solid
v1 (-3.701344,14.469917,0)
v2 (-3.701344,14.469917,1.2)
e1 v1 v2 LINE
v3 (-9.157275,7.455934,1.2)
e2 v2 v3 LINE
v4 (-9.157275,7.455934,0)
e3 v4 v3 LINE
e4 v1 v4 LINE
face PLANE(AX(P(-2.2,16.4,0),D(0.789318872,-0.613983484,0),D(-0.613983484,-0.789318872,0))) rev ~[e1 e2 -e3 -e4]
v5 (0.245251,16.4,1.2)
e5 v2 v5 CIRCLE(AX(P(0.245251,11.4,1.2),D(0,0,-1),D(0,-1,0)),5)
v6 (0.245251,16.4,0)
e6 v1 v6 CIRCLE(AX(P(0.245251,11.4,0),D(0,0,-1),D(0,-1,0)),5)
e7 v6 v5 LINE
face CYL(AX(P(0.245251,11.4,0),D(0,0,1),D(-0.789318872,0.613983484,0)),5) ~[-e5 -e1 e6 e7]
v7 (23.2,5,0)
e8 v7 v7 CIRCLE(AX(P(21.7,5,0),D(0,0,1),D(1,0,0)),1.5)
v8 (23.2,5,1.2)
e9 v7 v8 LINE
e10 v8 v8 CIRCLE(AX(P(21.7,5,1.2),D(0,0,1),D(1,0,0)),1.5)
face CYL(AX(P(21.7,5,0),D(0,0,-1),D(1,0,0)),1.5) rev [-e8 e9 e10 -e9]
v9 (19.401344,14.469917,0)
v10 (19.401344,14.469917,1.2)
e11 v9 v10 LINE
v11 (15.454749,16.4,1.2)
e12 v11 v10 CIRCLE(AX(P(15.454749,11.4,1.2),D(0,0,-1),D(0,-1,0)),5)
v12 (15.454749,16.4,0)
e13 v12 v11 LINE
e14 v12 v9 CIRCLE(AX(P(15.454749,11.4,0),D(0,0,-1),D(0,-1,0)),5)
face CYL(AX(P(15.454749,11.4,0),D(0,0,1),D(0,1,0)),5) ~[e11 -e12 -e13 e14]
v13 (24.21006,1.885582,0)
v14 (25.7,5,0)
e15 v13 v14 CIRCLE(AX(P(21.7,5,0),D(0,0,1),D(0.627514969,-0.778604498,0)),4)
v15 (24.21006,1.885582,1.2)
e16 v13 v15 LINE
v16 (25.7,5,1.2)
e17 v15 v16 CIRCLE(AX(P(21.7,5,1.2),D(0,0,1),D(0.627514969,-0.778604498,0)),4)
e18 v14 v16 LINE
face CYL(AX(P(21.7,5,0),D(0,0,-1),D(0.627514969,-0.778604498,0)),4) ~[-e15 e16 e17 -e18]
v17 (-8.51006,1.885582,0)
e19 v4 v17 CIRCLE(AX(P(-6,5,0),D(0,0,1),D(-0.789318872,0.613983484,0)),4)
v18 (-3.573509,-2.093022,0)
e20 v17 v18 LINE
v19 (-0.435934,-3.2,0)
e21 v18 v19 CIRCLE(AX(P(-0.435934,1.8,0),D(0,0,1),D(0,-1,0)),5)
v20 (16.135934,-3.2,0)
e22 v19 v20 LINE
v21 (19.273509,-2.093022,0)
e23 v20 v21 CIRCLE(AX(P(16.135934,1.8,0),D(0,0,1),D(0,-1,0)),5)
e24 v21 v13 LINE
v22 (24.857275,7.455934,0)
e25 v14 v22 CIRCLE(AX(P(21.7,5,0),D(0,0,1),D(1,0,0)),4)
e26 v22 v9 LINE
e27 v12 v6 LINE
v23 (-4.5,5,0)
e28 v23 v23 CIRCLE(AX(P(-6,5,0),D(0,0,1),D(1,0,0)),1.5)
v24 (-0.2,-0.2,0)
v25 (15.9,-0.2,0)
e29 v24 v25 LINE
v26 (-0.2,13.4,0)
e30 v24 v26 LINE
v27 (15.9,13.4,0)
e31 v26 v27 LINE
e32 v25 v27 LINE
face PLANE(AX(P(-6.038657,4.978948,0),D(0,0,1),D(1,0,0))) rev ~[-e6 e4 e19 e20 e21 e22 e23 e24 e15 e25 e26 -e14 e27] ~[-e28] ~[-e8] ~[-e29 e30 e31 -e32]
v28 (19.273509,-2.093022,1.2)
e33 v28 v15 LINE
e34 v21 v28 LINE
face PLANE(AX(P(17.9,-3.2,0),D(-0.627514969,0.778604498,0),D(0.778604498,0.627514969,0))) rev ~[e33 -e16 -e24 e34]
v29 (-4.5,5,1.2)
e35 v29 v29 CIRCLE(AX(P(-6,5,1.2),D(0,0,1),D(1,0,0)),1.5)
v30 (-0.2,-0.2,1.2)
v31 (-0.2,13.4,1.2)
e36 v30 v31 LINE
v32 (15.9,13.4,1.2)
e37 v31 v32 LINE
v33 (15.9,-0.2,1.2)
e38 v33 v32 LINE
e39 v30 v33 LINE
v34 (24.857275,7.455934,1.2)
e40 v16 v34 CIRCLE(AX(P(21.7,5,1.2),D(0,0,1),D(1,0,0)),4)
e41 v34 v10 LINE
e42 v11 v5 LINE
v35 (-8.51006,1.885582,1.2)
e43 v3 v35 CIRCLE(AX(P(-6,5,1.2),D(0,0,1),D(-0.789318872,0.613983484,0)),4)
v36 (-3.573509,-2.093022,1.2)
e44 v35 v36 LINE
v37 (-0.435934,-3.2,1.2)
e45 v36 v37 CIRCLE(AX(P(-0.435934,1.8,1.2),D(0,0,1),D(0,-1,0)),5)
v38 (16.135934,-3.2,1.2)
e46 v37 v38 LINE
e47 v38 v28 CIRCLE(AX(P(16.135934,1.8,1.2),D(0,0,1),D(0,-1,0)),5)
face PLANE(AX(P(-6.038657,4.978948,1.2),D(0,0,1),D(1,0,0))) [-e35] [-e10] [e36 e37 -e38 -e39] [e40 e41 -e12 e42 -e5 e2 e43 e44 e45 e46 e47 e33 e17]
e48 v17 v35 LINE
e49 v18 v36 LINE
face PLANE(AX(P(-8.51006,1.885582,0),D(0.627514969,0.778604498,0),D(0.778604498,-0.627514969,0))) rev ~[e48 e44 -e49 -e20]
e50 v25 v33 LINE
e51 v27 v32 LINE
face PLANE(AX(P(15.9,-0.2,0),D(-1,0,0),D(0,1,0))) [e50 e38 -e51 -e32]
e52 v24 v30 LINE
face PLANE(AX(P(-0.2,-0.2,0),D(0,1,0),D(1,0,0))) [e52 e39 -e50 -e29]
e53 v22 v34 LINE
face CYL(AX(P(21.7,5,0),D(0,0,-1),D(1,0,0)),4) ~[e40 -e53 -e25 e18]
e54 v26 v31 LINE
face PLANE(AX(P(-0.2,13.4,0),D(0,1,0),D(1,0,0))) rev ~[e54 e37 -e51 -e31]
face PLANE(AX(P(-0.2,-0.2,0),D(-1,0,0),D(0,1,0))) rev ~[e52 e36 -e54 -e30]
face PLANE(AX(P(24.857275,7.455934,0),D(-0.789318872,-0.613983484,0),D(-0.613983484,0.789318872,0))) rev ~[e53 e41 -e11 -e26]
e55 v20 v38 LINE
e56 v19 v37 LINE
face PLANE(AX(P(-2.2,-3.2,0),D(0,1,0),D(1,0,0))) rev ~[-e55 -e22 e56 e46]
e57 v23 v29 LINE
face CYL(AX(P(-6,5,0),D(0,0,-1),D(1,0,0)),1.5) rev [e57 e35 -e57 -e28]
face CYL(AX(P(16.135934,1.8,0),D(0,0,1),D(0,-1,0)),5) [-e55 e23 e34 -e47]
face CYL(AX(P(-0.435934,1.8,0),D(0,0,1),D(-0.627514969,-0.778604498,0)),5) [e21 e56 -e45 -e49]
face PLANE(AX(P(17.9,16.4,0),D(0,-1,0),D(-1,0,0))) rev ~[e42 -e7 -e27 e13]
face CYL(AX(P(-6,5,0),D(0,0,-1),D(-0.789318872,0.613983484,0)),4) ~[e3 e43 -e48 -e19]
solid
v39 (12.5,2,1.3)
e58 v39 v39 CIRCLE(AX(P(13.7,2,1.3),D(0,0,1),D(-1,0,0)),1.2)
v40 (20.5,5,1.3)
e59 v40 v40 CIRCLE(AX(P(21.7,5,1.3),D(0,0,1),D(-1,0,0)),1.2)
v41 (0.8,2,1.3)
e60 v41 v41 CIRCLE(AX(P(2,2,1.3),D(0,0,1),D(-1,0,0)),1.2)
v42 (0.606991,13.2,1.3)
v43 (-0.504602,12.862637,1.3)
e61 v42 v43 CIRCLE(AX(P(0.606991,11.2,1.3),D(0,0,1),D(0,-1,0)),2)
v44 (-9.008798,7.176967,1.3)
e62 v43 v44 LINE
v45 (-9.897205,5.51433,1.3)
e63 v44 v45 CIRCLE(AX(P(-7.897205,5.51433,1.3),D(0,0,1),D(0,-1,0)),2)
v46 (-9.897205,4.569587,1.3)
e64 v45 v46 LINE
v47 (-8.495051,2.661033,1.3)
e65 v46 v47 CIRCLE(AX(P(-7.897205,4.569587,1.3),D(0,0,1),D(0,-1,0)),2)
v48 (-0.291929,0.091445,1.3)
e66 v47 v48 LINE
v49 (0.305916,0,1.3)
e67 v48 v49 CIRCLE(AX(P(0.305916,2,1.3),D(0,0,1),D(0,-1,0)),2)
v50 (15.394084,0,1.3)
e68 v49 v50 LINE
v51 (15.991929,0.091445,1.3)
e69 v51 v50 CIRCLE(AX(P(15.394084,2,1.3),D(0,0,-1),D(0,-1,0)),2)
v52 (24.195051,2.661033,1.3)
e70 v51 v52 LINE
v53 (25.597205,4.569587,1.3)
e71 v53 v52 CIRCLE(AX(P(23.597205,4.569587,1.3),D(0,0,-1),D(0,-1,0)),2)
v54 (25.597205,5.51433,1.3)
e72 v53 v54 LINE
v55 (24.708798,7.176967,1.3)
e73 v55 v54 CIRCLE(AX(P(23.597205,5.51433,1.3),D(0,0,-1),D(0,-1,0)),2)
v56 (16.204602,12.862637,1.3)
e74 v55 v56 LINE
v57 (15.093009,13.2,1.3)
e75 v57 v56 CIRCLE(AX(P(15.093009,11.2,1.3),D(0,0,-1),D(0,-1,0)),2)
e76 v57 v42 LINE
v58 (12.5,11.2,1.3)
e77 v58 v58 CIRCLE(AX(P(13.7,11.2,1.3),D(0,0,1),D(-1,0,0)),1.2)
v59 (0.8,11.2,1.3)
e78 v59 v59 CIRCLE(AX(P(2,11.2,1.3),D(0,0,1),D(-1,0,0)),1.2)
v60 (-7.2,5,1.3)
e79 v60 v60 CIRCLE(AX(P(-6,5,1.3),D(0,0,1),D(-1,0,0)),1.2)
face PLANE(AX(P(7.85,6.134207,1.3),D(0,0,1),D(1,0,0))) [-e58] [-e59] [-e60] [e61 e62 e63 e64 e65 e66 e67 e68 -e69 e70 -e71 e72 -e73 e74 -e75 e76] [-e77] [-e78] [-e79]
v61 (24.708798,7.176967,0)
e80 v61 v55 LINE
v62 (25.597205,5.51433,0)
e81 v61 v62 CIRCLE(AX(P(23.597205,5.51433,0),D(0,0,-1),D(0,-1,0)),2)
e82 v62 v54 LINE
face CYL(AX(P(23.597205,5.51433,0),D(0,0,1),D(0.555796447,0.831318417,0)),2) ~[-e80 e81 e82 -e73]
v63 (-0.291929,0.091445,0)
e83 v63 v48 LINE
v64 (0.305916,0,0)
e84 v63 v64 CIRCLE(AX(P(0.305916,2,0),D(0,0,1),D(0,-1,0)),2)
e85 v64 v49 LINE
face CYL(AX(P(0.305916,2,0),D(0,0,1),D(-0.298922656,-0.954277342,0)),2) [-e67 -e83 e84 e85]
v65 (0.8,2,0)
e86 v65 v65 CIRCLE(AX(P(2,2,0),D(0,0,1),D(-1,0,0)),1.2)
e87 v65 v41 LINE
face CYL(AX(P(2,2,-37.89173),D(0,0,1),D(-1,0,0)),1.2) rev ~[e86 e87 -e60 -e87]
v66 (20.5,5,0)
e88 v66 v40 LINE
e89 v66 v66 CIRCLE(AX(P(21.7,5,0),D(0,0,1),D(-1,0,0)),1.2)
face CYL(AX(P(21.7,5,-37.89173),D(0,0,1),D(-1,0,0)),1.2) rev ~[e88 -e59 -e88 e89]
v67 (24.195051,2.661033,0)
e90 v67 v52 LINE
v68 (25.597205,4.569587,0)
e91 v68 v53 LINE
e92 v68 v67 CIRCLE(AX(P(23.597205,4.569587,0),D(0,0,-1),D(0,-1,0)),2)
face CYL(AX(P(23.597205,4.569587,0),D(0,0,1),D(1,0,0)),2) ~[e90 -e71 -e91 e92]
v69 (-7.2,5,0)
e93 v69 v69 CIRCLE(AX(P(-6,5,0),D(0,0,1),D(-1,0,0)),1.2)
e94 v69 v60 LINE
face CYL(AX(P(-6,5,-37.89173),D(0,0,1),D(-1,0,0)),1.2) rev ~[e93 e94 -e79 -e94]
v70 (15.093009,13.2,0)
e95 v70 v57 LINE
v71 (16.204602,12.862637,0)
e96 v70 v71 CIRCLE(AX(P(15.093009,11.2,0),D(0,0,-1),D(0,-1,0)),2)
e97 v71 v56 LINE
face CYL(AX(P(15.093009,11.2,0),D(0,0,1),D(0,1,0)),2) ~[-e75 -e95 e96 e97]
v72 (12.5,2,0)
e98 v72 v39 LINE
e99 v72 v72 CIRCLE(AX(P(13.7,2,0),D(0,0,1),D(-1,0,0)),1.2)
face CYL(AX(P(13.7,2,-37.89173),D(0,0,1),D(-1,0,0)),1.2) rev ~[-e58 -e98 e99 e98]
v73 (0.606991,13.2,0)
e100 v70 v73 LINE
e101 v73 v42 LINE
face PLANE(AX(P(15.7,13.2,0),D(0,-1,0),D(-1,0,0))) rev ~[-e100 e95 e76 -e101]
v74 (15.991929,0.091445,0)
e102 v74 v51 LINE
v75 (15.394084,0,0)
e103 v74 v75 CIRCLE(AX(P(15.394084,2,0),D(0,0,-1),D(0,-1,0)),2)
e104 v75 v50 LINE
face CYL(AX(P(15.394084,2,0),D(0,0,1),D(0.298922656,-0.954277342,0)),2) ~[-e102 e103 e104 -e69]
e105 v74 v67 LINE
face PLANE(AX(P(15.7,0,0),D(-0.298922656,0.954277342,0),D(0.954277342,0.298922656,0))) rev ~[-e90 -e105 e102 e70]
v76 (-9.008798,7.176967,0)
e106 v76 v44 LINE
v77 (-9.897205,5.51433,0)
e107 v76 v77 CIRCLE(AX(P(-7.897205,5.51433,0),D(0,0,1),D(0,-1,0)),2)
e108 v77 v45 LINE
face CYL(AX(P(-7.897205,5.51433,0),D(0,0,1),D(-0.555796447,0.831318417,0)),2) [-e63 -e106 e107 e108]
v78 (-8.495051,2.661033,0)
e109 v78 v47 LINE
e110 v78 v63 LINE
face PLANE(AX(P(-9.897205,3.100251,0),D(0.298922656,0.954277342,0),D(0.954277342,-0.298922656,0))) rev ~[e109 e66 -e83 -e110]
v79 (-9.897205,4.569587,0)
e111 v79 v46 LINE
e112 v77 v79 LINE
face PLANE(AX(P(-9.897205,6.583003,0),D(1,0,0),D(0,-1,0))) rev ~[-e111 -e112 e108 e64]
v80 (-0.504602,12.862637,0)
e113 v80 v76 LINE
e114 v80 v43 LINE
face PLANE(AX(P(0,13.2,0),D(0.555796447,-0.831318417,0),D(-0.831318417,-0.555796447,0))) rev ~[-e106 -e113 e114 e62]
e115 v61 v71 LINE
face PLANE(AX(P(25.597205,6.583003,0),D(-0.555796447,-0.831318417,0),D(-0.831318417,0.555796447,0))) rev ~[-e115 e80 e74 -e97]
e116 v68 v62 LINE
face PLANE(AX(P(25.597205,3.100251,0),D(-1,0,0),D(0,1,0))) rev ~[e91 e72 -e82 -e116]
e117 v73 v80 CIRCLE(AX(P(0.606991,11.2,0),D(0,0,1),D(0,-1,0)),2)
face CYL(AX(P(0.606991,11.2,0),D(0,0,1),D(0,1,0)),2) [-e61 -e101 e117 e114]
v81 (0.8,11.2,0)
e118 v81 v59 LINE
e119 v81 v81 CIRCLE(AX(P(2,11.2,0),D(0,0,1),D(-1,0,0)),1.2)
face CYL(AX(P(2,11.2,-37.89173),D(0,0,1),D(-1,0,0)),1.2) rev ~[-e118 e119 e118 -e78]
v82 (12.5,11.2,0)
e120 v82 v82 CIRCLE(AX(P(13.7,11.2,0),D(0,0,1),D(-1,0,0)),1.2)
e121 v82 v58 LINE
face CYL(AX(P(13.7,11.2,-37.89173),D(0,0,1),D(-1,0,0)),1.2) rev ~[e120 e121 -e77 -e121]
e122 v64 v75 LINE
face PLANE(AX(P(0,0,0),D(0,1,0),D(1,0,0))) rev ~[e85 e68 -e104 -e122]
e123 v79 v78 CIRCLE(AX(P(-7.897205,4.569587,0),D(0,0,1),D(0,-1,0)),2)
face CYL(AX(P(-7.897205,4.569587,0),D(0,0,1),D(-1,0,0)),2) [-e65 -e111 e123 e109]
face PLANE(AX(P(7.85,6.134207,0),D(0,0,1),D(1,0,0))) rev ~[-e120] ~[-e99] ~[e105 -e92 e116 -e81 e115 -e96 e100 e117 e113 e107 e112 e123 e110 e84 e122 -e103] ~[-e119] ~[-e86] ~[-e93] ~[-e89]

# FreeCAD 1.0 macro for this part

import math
import FreeCAD as App
import Part
import Sketcher

V = App.Vector


def edges_at(feature, points):
    """Names of the edges that pass closest to the given points."""
    edges = feature.Shape.Edges
    near = lambda p: min(range(len(edges)), key=lambda i: edges[i].distToShape(Part.Vertex(*p))[0])
    return sorted({f"Edge{near(p) + 1}" for p in points})

doc = App.newDocument("Part")
body = doc.addObject("PartDesign::Body", "Body")

# Sketch on XY plane
sketch1 = body.newObject("Sketcher::SketchObject", "Sketch")
sketch1.AttachmentSupport = (doc.getObject("XY_Plane"), [""])
sketch1.MapMode = "FlatFace"
sketch1.addGeometry([
    Part.LineSegment(V(15.7, 13.2, 0), V(0, 13.2, 0)),  # 0
    Part.LineSegment(V(0, 13.2, 0), V(-9.9, 6.6, 0)),  # 1
    Part.LineSegment(V(-9.9, 6.6, 0), V(-9.9, 3.1, 0)),  # 2
    Part.LineSegment(V(-9.9, 3.1, 0), V(0, 0, 0)),  # 3
    Part.LineSegment(V(0, 0, 0), V(15.7, 0, 0)),  # 4
    Part.LineSegment(V(15.7, 0, 0), V(25.6, 3.1, 0)),  # 5
    Part.LineSegment(V(25.6, 3.1, 0), V(25.6, 6.6, 0)),  # 6
    Part.LineSegment(V(25.6, 6.6, 0), V(15.7, 13.2, 0)),  # 7
], False)
sketch1.addConstraint([
    Sketcher.Constraint("Coincident", 0, 2, 1, 1),
    Sketcher.Constraint("Coincident", 1, 2, 2, 1),
    Sketcher.Constraint("Coincident", 2, 2, 3, 1),
    Sketcher.Constraint("Coincident", 3, 2, 4, 1),
    Sketcher.Constraint("Coincident", 4, 2, 5, 1),
    Sketcher.Constraint("Coincident", 5, 2, 6, 1),
    Sketcher.Constraint("Coincident", 6, 2, 7, 1),
    Sketcher.Constraint("Coincident", 7, 2, 0, 1),
    Sketcher.Constraint("Horizontal", 0),
    Sketcher.Constraint("Vertical", 2),
    Sketcher.Constraint("Horizontal", 4),
    Sketcher.Constraint("Vertical", 6),
    Sketcher.Constraint("Coincident", 3, 2, -1, 1),
    Sketcher.Constraint("PointOnObject", 0, 2, -2),
    Sketcher.Constraint("Horizontal", 2, 2, 5, 2),
    Sketcher.Constraint("Horizontal", 1, 2, 6, 2),
    Sketcher.Constraint("Vertical", 4, 2, 7, 2),
    Sketcher.Constraint("Equal", 3, 5),
    Sketcher.Constraint("DistanceX", 0, 2, 0, 1, 15.7),
    Sketcher.Constraint("DistanceY", -1, 1, 0, 2, 13.2),
    Sketcher.Constraint("DistanceY", 2, 2, 2, 1, 3.482752),
    Sketcher.Constraint("DistanceY", -1, 1, 2, 2, 3.100251),
    Sketcher.Constraint("DistanceX", 2, 2, 5, 2, 35.494411),
])
pad1 = body.newObject("PartDesign::Pad", "Pad")
pad1.Profile = sketch1
pad1.Length = 1.3

# Sketch on XY plane
sketch2 = body.newObject("Sketcher::SketchObject", "Sketch001")
sketch2.AttachmentSupport = (doc.getObject("XY_Plane"), [""])
sketch2.MapMode = "FlatFace"
sketch2.addGeometry([
    Part.Circle(V(13.7, 11.2, 0), V(0, 0, 1), 1.2),  # 0
    Part.Circle(V(2, 11.2, 0), V(0, 0, 1), 1.2),  # 1
    Part.Circle(V(-6, 5, 0), V(0, 0, 1), 1.2),  # 2
    Part.Circle(V(2, 2, 0), V(0, 0, 1), 1.2),  # 3
    Part.Circle(V(13.7, 2, 0), V(0, 0, 1), 1.2),  # 4
    Part.Circle(V(21.7, 5, 0), V(0, 0, 1), 1.2),  # 5
], False)
sketch2.addConstraint([
    Sketcher.Constraint("Equal", 0, 1),
    Sketcher.Constraint("Equal", 1, 2),
    Sketcher.Constraint("Equal", 2, 3),
    Sketcher.Constraint("Equal", 3, 4),
    Sketcher.Constraint("Equal", 4, 5),
    Sketcher.Constraint("Horizontal", 0, 3, 1, 3),
    Sketcher.Constraint("Horizontal", 3, 3, 4, 3),
    Sketcher.Constraint("Horizontal", 2, 3, 5, 3),
    Sketcher.Constraint("Vertical", 1, 3, 3, 3),
    Sketcher.Constraint("Vertical", 0, 3, 4, 3),
    Sketcher.Constraint("Diameter", 0, 2.4),
    Sketcher.Constraint("DistanceX", -1, 1, 1, 3, 2.0),
    Sketcher.Constraint("DistanceX", 2, 3, -1, 1, 6.0),
    Sketcher.Constraint("DistanceY", -1, 1, 2, 3, 5.0),
    Sketcher.Constraint("DistanceY", -1, 1, 3, 3, 2.0),
    Sketcher.Constraint("DistanceX", 4, 3, 5, 3, 8.0),
    Sketcher.Constraint("DistanceX", -1, 1, 0, 3, 13.7),
    Sketcher.Constraint("DistanceY", -1, 1, 0, 3, 11.2),
])
doc.recompute()
hole = body.newObject("PartDesign::Hole", "Hole")
hole.Profile = sketch2
hole.ThreadType = "None"
hole.Diameter = 2.4
hole.DepthType = "ThroughAll"
hole.Reversed = True
doc.recompute()

fillet = body.newObject("PartDesign::Fillet", "Fillet")
fillet.Base = (hole, edges_at(hole, [
    (-9.897, 3.1, 0.65),
    (-9.897, 6.583, 0.65),
    (0, 13.2, 0.65),
    (0, 0, 0.65),
    (15.7, 0, 0.65),
    (25.597, 3.1, 0.65),
    (25.597, 6.583, 0.65),
    (15.7, 13.2, 0.65),
]))
fillet.Radius = 2
body2 = doc.addObject("PartDesign::Body", "Body001")

# Sketch on XY plane
sketch3 = body2.newObject("Sketcher::SketchObject", "Sketch002")
sketch3.AttachmentSupport = (doc.getObject("XY_Plane001"), [""])
sketch3.MapMode = "FlatFace"
sketch3.addGeometry([
    Part.ArcOfCircle(Part.Circle(V(-6, 5, 0), V(0, 0, 1), 4), math.radians(142), math.radians(231)),  # 0
    Part.LineSegment(V(-8.5, 1.9, 0), V(-2.2, -3.2, 0)),  # 1
    Part.LineSegment(V(-2.2, -3.2, 0), V(17.9, -3.2, 0)),  # 2
    Part.LineSegment(V(17.9, -3.2, 0), V(24.2, 1.9, 0)),  # 3
    Part.ArcOfCircle(Part.Circle(V(21.7, 5, 0), V(0, 0, 1), 4), math.radians(-51), math.radians(0)),  # 4
    Part.ArcOfCircle(Part.Circle(V(21.7, 5, 0), V(0, 0, 1), 4), math.radians(0), math.radians(38)),  # 5
    Part.LineSegment(V(24.9, 7.5, 0), V(17.9, 16.4, 0)),  # 6
    Part.LineSegment(V(17.9, 16.4, 0), V(-2.2, 16.4, 0)),  # 7
    Part.LineSegment(V(-2.2, 16.4, 0), V(-9.2, 7.5, 0)),  # 8
    Part.Circle(V(-6, 5, 0), V(0, 0, 1), 1.5),  # 9
    Part.Circle(V(21.7, 5, 0), V(0, 0, 1), 1.5),  # 10
    Part.LineSegment(V(15.9, -0.2, 0), V(-0.2, -0.2, 0)),  # 11
    Part.LineSegment(V(-0.2, -0.2, 0), V(-0.2, 13.4, 0)),  # 12
    Part.LineSegment(V(-0.2, 13.4, 0), V(15.9, 13.4, 0)),  # 13
    Part.LineSegment(V(15.9, 13.4, 0), V(15.9, -0.2, 0)),  # 14
], False)
sketch3.addConstraint([
    Sketcher.Constraint("Tangent", 0, 2, 1, 1),
    Sketcher.Constraint("Coincident", 1, 2, 2, 1),
    Sketcher.Constraint("Coincident", 2, 2, 3, 1),
    Sketcher.Constraint("Tangent", 3, 2, 4, 1),
    Sketcher.Constraint("Tangent", 4, 2, 5, 1),
    Sketcher.Constraint("Tangent", 5, 2, 6, 1),
    Sketcher.Constraint("Coincident", 6, 2, 7, 1),
    Sketcher.Constraint("Coincident", 7, 2, 8, 1),
    Sketcher.Constraint("Tangent", 8, 2, 0, 1),
    Sketcher.Constraint("Coincident", 11, 2, 12, 1),
    Sketcher.Constraint("Coincident", 12, 2, 13, 1),
    Sketcher.Constraint("Coincident", 13, 2, 14, 1),
    Sketcher.Constraint("Coincident", 14, 2, 11, 1),
    Sketcher.Constraint("Horizontal", 2),
    Sketcher.Constraint("Horizontal", 7),
    Sketcher.Constraint("Horizontal", 11),
    Sketcher.Constraint("Vertical", 12),
    Sketcher.Constraint("Horizontal", 13),
    Sketcher.Constraint("Vertical", 14),
    Sketcher.Constraint("Coincident", 9, 3, 0, 3),
    Sketcher.Constraint("Coincident", 10, 3, 4, 3),
    Sketcher.Constraint("Equal", 0, 4),
    Sketcher.Constraint("Equal", 4, 5),
    Sketcher.Constraint("Equal", 9, 10),
    Sketcher.Constraint("Horizontal", 0, 3, 4, 3),
    Sketcher.Constraint("Horizontal", 0, 2, 3, 2),
    Sketcher.Constraint("Horizontal", 10, 3, 4, 2),
    Sketcher.Constraint("Horizontal", 5, 2, 8, 2),
    Sketcher.Constraint("Vertical", 2, 2, 6, 2),
    Sketcher.Constraint("Diameter", 9, 3.0),
    Sketcher.Constraint("Radius", 0, 4.0),
    Sketcher.Constraint("DistanceX", 2, 1, 2, 2, 20.1),
    Sketcher.Constraint("DistanceX", 11, 2, 11, 1, 16.1),
    Sketcher.Constraint("DistanceY", 12, 1, 12, 2, 13.6),
    Sketcher.Constraint("DistanceX", 0, 3, -1, 1, 6.0),
    Sketcher.Constraint("DistanceY", -1, 1, 0, 3, 5.0),
    Sketcher.Constraint("DistanceX", 1, 2, 11, 2, 2.0),
    Sketcher.Constraint("DistanceY", 1, 2, 11, 2, 3.0),
    Sketcher.Constraint("DistanceY", 12, 2, 7, 2, 3.0),
    Sketcher.Constraint("DistanceX", -1, 1, 4, 3, 21.7),
    Sketcher.Constraint("DistanceY", 1, 2, -1, 1, 3.2),
])
pad2 = body2.newObject("PartDesign::Pad", "Pad001")
pad2.Profile = sketch3
pad2.Length = 1.2
doc.recompute()

fillet2 = body2.newObject("PartDesign::Fillet", "Fillet001")
fillet2.Base = (pad2, edges_at(pad2, [
    (-2.2, -3.2, 0.6),
    (17.9, -3.2, 0.6),
    (17.9, 16.4, 0.6),
    (-2.2, 16.4, 0.6),
]))
fillet2.Radius = 5

doc.recompute()
